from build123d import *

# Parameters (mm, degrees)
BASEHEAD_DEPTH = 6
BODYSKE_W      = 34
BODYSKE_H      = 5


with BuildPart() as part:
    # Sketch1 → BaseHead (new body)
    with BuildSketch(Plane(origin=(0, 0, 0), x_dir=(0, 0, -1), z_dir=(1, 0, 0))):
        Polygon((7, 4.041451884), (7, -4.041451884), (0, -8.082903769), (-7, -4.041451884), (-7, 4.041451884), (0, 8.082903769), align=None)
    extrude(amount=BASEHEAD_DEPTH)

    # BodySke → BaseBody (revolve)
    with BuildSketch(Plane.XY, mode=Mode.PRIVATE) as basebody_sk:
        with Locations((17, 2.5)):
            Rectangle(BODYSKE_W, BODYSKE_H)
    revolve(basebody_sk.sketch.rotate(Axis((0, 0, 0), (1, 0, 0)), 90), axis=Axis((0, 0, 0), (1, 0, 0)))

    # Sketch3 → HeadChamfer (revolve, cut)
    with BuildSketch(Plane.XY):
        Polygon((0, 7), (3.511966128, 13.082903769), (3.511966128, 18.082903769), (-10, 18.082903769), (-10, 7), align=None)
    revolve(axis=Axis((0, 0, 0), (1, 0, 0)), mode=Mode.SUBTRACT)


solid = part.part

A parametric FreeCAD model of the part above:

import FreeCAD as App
import Part
import Sketcher
Q = App.Units.Quantity


def add_polygon(sketch, points):
    """Adds a closed chain of lines whose ends are joined by coincident constraints."""
    first, n = sketch.GeometryCount, len(points)
    for a, b in zip(points, points[1:] + points[:1]):
        sketch.addGeometry(Part.LineSegment(App.Vector(*a, 0), App.Vector(*b, 0)), False)
    for i in range(n):
        sketch.addConstraint(Sketcher.Constraint("Coincident", first + i, 2, first + (i + 1) % n, 1))

doc = App.newDocument("Part")
body = doc.addObject("PartDesign::Body", "Body")

# Sketch on YZ plane
sketch1 = doc.addObject("Sketcher::SketchObject", "Sketch")
body.addObject(sketch1)
sketch1.AttachmentSupport = (doc.YZ_Plane, [""])
sketch1.MapMode = "FlatFace"
add_polygon(sketch1, [(-4, -7), (4, -7), (8, 0), (4, 7), (-4, 7), (-8, 0)])  # lines 0-5
sketch1.addConstraint([
    Sketcher.Constraint("Horizontal", 0),
    Sketcher.Constraint("Horizontal", 3),
    Sketcher.Constraint("Symmetric", 0, 2, 3, 2, -1, 1),
    Sketcher.Constraint("Symmetric", 1, 2, 4, 2, -1, 1),
    Sketcher.Constraint("PointOnObject", 1, 2, -1),
    Sketcher.Constraint("Parallel", 2, 5),
    Sketcher.Constraint("Vertical", 0, 2, 2, 2),
    Sketcher.Constraint("Angle", 1, Q("60 deg")),
    Sketcher.Constraint("DistanceY", 0, 2, -1, 1, Q("7 mm")),
    Sketcher.Constraint("DistanceX", 0, 1, 0, 2, Q("8.082904 mm")),
])
pad1 = doc.addObject("PartDesign::Pad", "Pad")
body.addObject(pad1)
pad1.Profile = sketch1
pad1.Length = 6

# Sketch on XY plane
sketch2 = doc.addObject("Sketcher::SketchObject", "Sketch001")
body.addObject(sketch2)
sketch2.AttachmentSupport = (doc.XY_Plane, [""])
sketch2.MapMode = "FlatFace"
add_polygon(sketch2, [(0, 5), (0, 0), (34, 0), (34, 5)])  # lines 0-3
sketch2.addConstraint([
    Sketcher.Constraint("Vertical", 0),
    Sketcher.Constraint("Horizontal", 1),
    Sketcher.Constraint("Vertical", 2),
    Sketcher.Constraint("Horizontal", 3),
    Sketcher.Constraint("Coincident", 0, 2, -1, 1),
    Sketcher.Constraint("DistanceX", 1, 1, 1, 2, Q("34 mm")),
    Sketcher.Constraint("DistanceY", 0, 2, 0, 1, Q("5 mm")),
])
revolution = doc.addObject("PartDesign::Revolution", "Revolution")
body.addObject(revolution)
revolution.Profile = sketch2
revolution.ReferenceAxis = (sketch2, ["H_Axis"])
revolution.Angle = 360

# Sketch on XY plane
sketch3 = doc.addObject("Sketcher::SketchObject", "Sketch002")
body.addObject(sketch3)
sketch3.AttachmentSupport = (doc.XY_Plane, [""])
sketch3.MapMode = "FlatFace"
add_polygon(sketch3, [(0, 7), (4, 13), (4, 18), (-10, 18), (-10, 7)])  # lines 0-4
sketch3.addConstraint([
    Sketcher.Constraint("Vertical", 1),
    Sketcher.Constraint("Horizontal", 2),
    Sketcher.Constraint("Vertical", 3),
    Sketcher.Constraint("Horizontal", 4),
    Sketcher.Constraint("PointOnObject", 4, 2, -2),
    Sketcher.Constraint("DistanceX", 4, 1, 4, 2, Q("10 mm")),
    Sketcher.Constraint("DistanceY", 1, 1, 1, 2, Q("5 mm")),
    Sketcher.Constraint("Angle", 0, Q("60 deg")),
    Sketcher.Constraint("DistanceY", -1, 1, 3, 2, Q("7 mm")),
    Sketcher.Constraint("DistanceX", 2, 2, 2, 1, Q("13.511966 mm")),
])
groove = doc.addObject("PartDesign::Groove", "Groove")
body.addObject(groove)
groove.Profile = sketch3
groove.ReferenceAxis = (sketch3, ["H_Axis"])
groove.Angle = 360

doc.recompute()
